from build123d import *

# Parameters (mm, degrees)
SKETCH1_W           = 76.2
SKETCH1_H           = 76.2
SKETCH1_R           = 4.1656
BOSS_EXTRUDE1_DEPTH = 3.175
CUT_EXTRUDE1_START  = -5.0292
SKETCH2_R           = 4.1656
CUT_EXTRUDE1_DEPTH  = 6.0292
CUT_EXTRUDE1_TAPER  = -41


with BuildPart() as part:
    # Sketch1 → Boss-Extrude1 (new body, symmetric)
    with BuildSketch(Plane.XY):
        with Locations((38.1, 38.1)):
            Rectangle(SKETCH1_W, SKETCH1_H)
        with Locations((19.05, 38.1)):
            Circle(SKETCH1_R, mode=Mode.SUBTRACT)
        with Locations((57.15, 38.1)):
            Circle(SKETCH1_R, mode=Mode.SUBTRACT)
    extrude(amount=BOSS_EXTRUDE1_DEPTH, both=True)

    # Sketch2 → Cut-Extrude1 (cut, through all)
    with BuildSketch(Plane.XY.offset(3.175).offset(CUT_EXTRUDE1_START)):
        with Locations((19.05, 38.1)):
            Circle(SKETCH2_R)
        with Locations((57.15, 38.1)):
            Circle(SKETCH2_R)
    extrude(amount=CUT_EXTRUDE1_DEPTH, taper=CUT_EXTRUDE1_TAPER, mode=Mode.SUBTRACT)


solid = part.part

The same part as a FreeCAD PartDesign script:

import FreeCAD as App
import Part
import Sketcher
Q = App.Units.Quantity

doc = App.newDocument("Part")
params = doc.addObject("Spreadsheet::Sheet", "Params")
for row, (alias, value) in enumerate([
    ("sketch1_width", "3 in"),
    ("sketch1_diameter", "0.328 in"),
    ("pad1_length", "0.25 in"),
    ("sketch2_diameter", "0.328 in"),
    ("pocket1_length", "6.0292 mm"),
    ("pocket1_taper", "41 deg"),
], start=1):
    params.set(f"A{row}", alias)
    params.set(f"B{row}", "=" + value)
    params.setAlias(f"B{row}", alias)

body = doc.addObject("PartDesign::Body", "Body")

sketch1 = doc.addObject("Sketcher::SketchObject", "Sketch")
body.addObject(sketch1)
sketch1.AttachmentSupport = (doc.XY_Plane, [""])
sketch1.MapMode = "FlatFace"
sketch1.addGeometry([
    Part.LineSegment(App.Vector(0, 76.2, 0), App.Vector(0, 0, 0)),
    Part.LineSegment(App.Vector(0, 0, 0), App.Vector(76.2, 0, 0)),
    Part.LineSegment(App.Vector(76.2, 0, 0), App.Vector(76.2, 76.2, 0)),
    Part.LineSegment(App.Vector(76.2, 76.2, 0), App.Vector(0, 76.2, 0)),
    Part.Circle(App.Vector(19.1, 38.1, 0), App.Vector(0, 0, 1), 4.2),
    Part.Circle(App.Vector(57.1, 38.1, 0), App.Vector(0, 0, 1), 4.2),
], False)
sketch1.addConstraint([
    Sketcher.Constraint("Coincident", 0, 2, 1, 1),
    Sketcher.Constraint("Coincident", 1, 2, 2, 1),
    Sketcher.Constraint("Coincident", 2, 2, 3, 1),
    Sketcher.Constraint("Coincident", 3, 2, 0, 1),
    Sketcher.Constraint("Vertical", 0),
    Sketcher.Constraint("Horizontal", 1),
    Sketcher.Constraint("Vertical", 2),
    Sketcher.Constraint("Horizontal", 3),
    Sketcher.Constraint("Coincident", 0, 2, -1, 1),
    Sketcher.Constraint("Equal", 4, 5),
    Sketcher.Constraint("Horizontal", 4, 3, 5, 3),
    Sketcher.Constraint("Equal", 3, 0),
    Sketcher.Constraint("DistanceX", 1, 1, 1, 2, Q("3 in")),
    Sketcher.Constraint("Diameter", 4, Q("0.328 in")),
    Sketcher.Constraint("DistanceY", -1, 1, 4, 3, Q("1.5 in")),
    Sketcher.Constraint("DistanceX", 4, 3, 5, 3, Q("1.5 in")),
    Sketcher.Constraint("DistanceX", -1, 1, 4, 3, Q("0.75 in")),
])
sketch1.setExpression("Constraints[12]", "Params.sketch1_width")
sketch1.setExpression("Constraints[13]", "Params.sketch1_diameter")
pad1 = doc.addObject("PartDesign::Pad", "Pad")
body.addObject(pad1)
pad1.Profile = sketch1
pad1.setExpression("Length", "Params.pad1_length")
pad1.Midplane = True

sketch2 = doc.addObject("Sketcher::SketchObject", "Sketch001")
body.addObject(sketch2)
sketch2.AttachmentSupport = (doc.XY_Plane, [""])
sketch2.MapMode = "FlatFace"
sketch2.AttachmentOffset = App.Placement(App.Vector(0, 0, -0.073 * 25.4), App.Rotation())
sketch2.addGeometry([
    Part.Circle(App.Vector(19.1, 38.1, 0), App.Vector(0, 0, 1), 4.2),
    Part.Circle(App.Vector(57.1, 38.1, 0), App.Vector(0, 0, 1), 4.2),
], False)
sketch2.addConstraint([
    Sketcher.Constraint("Equal", 0, 1),
    Sketcher.Constraint("Horizontal", 0, 3, 1, 3),
    Sketcher.Constraint("Diameter", 0, Q("0.328 in")),
    Sketcher.Constraint("DistanceY", -1, 1, 0, 3, Q("1.5 in")),
    Sketcher.Constraint("DistanceX", 0, 3, 1, 3, Q("1.5 in")),
    Sketcher.Constraint("DistanceX", -1, 1, 0, 3, Q("0.75 in")),
])
sketch2.setExpression("Constraints[2]", "Params.sketch2_diameter")
pocket1 = doc.addObject("PartDesign::Pocket", "Pocket")
body.addObject(pocket1)
pocket1.Profile = sketch2
pocket1.setExpression("Length", "Params.pocket1_length")
pocket1.Reversed = True
pocket1.setExpression("TaperAngle", "Params.pocket1_taper")

doc.recompute()
